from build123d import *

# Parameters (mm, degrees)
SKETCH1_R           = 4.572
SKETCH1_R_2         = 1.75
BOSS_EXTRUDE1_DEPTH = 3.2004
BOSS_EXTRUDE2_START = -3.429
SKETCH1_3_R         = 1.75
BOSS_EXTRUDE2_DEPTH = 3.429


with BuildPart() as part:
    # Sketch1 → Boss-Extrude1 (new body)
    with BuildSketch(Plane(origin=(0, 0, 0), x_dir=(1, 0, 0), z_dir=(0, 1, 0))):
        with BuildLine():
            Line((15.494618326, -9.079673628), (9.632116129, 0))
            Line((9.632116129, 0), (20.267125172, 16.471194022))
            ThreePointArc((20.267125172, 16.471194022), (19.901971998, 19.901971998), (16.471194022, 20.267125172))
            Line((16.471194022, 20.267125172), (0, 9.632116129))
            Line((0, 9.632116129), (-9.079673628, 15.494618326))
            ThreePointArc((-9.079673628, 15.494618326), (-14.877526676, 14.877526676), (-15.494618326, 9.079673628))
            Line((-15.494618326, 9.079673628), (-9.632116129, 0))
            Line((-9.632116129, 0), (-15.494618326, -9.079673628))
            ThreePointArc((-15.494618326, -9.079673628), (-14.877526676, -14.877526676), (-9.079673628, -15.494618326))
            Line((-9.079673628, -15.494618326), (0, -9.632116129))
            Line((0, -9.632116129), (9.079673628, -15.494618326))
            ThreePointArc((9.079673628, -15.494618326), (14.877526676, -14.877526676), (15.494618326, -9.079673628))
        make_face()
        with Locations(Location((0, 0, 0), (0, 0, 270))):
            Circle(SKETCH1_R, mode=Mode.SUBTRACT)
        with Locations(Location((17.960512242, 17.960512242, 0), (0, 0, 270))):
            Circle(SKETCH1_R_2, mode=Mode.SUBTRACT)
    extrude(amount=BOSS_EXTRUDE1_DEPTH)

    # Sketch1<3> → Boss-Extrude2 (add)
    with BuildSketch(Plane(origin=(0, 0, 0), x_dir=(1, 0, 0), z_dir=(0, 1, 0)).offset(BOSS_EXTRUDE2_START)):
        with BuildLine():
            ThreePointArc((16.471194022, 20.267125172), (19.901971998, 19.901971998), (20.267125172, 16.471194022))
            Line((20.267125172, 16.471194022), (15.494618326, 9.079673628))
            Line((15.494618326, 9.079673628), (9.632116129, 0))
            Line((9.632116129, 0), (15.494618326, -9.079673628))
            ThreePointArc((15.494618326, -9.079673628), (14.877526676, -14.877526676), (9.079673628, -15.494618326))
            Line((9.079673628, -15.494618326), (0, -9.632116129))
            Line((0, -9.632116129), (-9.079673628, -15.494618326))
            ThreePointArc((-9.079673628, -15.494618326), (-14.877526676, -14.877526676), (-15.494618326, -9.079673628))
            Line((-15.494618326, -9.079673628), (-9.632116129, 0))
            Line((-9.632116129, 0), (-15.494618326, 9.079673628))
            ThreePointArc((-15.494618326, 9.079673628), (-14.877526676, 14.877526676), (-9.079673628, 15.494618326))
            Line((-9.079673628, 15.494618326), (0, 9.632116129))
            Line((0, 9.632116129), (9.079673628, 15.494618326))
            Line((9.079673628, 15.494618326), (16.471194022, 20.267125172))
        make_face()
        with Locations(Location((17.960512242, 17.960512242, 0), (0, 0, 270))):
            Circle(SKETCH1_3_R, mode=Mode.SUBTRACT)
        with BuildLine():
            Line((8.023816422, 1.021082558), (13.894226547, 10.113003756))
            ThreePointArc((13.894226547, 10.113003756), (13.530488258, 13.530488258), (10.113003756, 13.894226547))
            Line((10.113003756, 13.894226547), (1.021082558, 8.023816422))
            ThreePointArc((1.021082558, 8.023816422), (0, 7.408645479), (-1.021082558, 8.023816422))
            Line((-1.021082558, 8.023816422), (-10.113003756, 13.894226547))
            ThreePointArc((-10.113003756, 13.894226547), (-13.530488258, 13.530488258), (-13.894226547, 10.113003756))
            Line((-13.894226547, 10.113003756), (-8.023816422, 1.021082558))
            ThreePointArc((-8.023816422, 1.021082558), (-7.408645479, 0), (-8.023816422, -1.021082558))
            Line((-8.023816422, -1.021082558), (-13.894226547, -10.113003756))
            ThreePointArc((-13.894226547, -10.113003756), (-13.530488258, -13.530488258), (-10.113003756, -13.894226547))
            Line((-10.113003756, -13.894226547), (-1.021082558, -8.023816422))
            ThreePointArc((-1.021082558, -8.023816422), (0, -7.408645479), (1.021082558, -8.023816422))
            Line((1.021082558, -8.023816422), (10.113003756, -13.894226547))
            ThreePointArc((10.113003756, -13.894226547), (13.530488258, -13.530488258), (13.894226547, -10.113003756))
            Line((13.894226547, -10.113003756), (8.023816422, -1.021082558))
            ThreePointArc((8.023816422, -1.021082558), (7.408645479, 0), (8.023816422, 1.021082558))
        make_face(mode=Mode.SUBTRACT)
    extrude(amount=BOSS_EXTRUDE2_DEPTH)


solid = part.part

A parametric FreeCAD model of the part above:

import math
import FreeCAD as App
import Part
import Sketcher
from FreeCAD import Vector
Q = App.Units.Quantity

doc = App.newDocument("Part")
body = doc.addObject("PartDesign::Body", "Body")

# Sketch on XZ plane
sketch1 = body.newObject("Sketcher::SketchObject", "Sketch")
sketch1.AttachmentSupport = (doc.getObject("XZ_Plane"), [""])
sketch1.MapMode = "FlatFace"
sketch1.addGeometry(Part.LineSegment(Vector(15.5, 9.1, 0), Vector(9.6, 0, 0)), False)
sketch1.addGeometry(Part.LineSegment(Vector(9.6, 0, 0), Vector(20.3, -16.5, 0)), False)
sketch1.addGeometry(Part.ArcOfCircle(Part.Circle(Vector(18, -18, 0), Vector(0, 0, 1), 2.7), math.radians(-123), math.radians(33)), False)
sketch1.addGeometry(Part.LineSegment(Vector(16.5, -20.3, 0), Vector(0, -9.6, 0)), False)
sketch1.addGeometry(Part.LineSegment(Vector(0, -9.6, 0), Vector(-9.1, -15.5, 0)), False)
sketch1.addGeometry(Part.ArcOfCircle(Part.Circle(Vector(-11.6, -11.6, 0), Vector(0, 0, 1), 4.6), math.radians(147), math.radians(303)), False)
sketch1.addGeometry(Part.LineSegment(Vector(-15.5, -9.1, 0), Vector(-9.6, 0, 0)), False)
sketch1.addGeometry(Part.LineSegment(Vector(-9.6, 0, 0), Vector(-15.5, 9.1, 0)), False)
sketch1.addGeometry(Part.ArcOfCircle(Part.Circle(Vector(-11.6, 11.6, 0), Vector(0, 0, 1), 4.6), math.radians(57), math.radians(213)), False)
sketch1.addGeometry(Part.LineSegment(Vector(-9.1, 15.5, 0), Vector(0, 9.6, 0)), False)
sketch1.addGeometry(Part.LineSegment(Vector(0, 9.6, 0), Vector(9.1, 15.5, 0)), False)
sketch1.addGeometry(Part.ArcOfCircle(Part.Circle(Vector(11.6, 11.6, 0), Vector(0, 0, 1), 4.6), math.radians(-33), math.radians(123)), False)
sketch1.addGeometry(Part.Circle(Vector(0, 0, 0), Vector(0, 0, 1), 4.6), False)
sketch1.addGeometry(Part.Circle(Vector(18, -18, 0), Vector(0, 0, 1), 1.8), False)
sketch1.addConstraint(Sketcher.Constraint("Coincident", 0, 2, 1, 1))
sketch1.addConstraint(Sketcher.Constraint("Tangent", 1, 2, 2, 2))
sketch1.addConstraint(Sketcher.Constraint("Tangent", 2, 1, 3, 1))
sketch1.addConstraint(Sketcher.Constraint("Coincident", 3, 2, 4, 1))
sketch1.addConstraint(Sketcher.Constraint("Tangent", 4, 2, 5, 2))
sketch1.addConstraint(Sketcher.Constraint("Tangent", 5, 1, 6, 1))
sketch1.addConstraint(Sketcher.Constraint("Coincident", 6, 2, 7, 1))
sketch1.addConstraint(Sketcher.Constraint("Tangent", 7, 2, 8, 2))
sketch1.addConstraint(Sketcher.Constraint("Tangent", 8, 1, 9, 1))
sketch1.addConstraint(Sketcher.Constraint("Coincident", 9, 2, 10, 1))
sketch1.addConstraint(Sketcher.Constraint("Tangent", 10, 2, 11, 2))
sketch1.addConstraint(Sketcher.Constraint("Tangent", 11, 1, 0, 1))
sketch1.addConstraint(Sketcher.Constraint("Coincident", 12, 3, -1, 1))
sketch1.addConstraint(Sketcher.Constraint("Coincident", 13, 3, 2, 3))
sketch1.addConstraint(Sketcher.Constraint("Equal", 5, 8))
sketch1.addConstraint(Sketcher.Constraint("Equal", 8, 11))
sketch1.addConstraint(Sketcher.Constraint("Symmetric", 5, 3, 11, 3, -1, 1))
sketch1.addConstraint(Sketcher.Constraint("Symmetric", 0, 2, 6, 2, -1, 1))
sketch1.addConstraint(Sketcher.Constraint("Symmetric", 3, 2, 9, 2, -1, 1))
sketch1.addConstraint(Sketcher.Constraint("Symmetric", 8, 3, 11, 3, -2))
sketch1.addConstraint(Sketcher.Constraint("PointOnObject", 0, 2, -1))
sketch1.addConstraint(Sketcher.Constraint("PointOnObject", 3, 2, -2))
sketch1.addConstraint(Sketcher.Constraint("Perpendicular", 0, 3))
sketch1.addConstraint(Sketcher.Constraint("Perpendicular", 1, 4))
sketch1.addConstraint(Sketcher.Constraint("Perpendicular", 4, 7))
sketch1.addConstraint(Sketcher.Constraint("Equal", 1, 3))
sketch1.addConstraint(Sketcher.Constraint("Diameter", 12, Q("0.36 in")))
sketch1.addConstraint(Sketcher.Constraint("Diameter", 13, 3.5))
sketch1.addConstraint(Sketcher.Constraint("Radius", 5, 4.64))
sketch1.addConstraint(Sketcher.Constraint("Radius", 2, 2.745639))
sketch1.addConstraint(Sketcher.Constraint("Distance", 0, 10.80784))
sketch1.addConstraint(Sketcher.Constraint("DistanceX", 5, 3, -1, 1, 11.596551))
pad1 = body.newObject("PartDesign::Pad", "Pad")
pad1.Profile = sketch1
pad1.Length = Q("0.126 in")
pad1.Reversed = True

# Sketch on XZ plane
sketch2 = body.newObject("Sketcher::SketchObject", "Sketch001")
sketch2.AttachmentSupport = (doc.getObject("XZ_Plane"), [""])
sketch2.MapMode = "FlatFace"
sketch2.AttachmentOffset = App.Placement(Vector(0, 0, 0.135 * 25.4), App.Rotation())
sketch2.addGeometry(Part.ArcOfCircle(Part.Circle(Vector(18, -18, 0), Vector(0, 0, 1), 2.7), math.radians(-123), math.radians(33)), False)
sketch2.addGeometry(Part.LineSegment(Vector(16.5, -20.3, 0), Vector(0, -9.6, 0)), False)
sketch2.addGeometry(Part.LineSegment(Vector(0, -9.6, 0), Vector(-9.1, -15.5, 0)), False)
sketch2.addGeometry(Part.ArcOfCircle(Part.Circle(Vector(-11.6, -11.6, 0), Vector(0, 0, 1), 4.6), math.radians(147), math.radians(303)), False)
sketch2.addGeometry(Part.LineSegment(Vector(-15.5, -9.1, 0), Vector(-9.6, 0, 0)), False)
sketch2.addGeometry(Part.LineSegment(Vector(-9.6, 0, 0), Vector(-15.5, 9.1, 0)), False)
sketch2.addGeometry(Part.ArcOfCircle(Part.Circle(Vector(-11.6, 11.6, 0), Vector(0, 0, 1), 4.6), math.radians(57), math.radians(213)), False)
sketch2.addGeometry(Part.LineSegment(Vector(-9.1, 15.5, 0), Vector(0, 9.6, 0)), False)
sketch2.addGeometry(Part.LineSegment(Vector(0, 9.6, 0), Vector(9.1, 15.5, 0)), False)
sketch2.addGeometry(Part.ArcOfCircle(Part.Circle(Vector(11.6, 11.6, 0), Vector(0, 0, 1), 4.6), math.radians(-33), math.radians(123)), False)
sketch2.addGeometry(Part.LineSegment(Vector(15.5, 9.1, 0), Vector(9.6, 0, 0)), False)
sketch2.addGeometry(Part.LineSegment(Vector(9.6, 0, 0), Vector(20.3, -16.5, 0)), False)
sketch2.addGeometry(Part.ArcOfCircle(Part.Circle(Vector(8.6, 0, 0), Vector(0, 0, 1), 1.2), math.radians(118), math.radians(242)), False)
sketch2.addGeometry(Part.LineSegment(Vector(8, 1, 0), Vector(13.9, 10.1, 0)), False)
sketch2.addGeometry(Part.ArcOfCircle(Part.Circle(Vector(11.6, 11.6, 0), Vector(0, 0, 1), 2.7), math.radians(-33), math.radians(123)), False)
sketch2.addGeometry(Part.LineSegment(Vector(10.1, 13.9, 0), Vector(1, 8, 0)), False)
sketch2.addGeometry(Part.ArcOfCircle(Part.Circle(Vector(0, 8.6, 0), Vector(0, 0, 1), 1.2), math.radians(-152), math.radians(-28)), False)
sketch2.addGeometry(Part.LineSegment(Vector(-1, 8, 0), Vector(-10.1, 13.9, 0)), False)
sketch2.addGeometry(Part.ArcOfCircle(Part.Circle(Vector(-11.6, 11.6, 0), Vector(0, 0, 1), 2.7), math.radians(57), math.radians(213)), False)
sketch2.addGeometry(Part.LineSegment(Vector(-13.9, 10.1, 0), Vector(-8, 1, 0)), False)
sketch2.addGeometry(Part.ArcOfCircle(Part.Circle(Vector(-8.6, 0, 0), Vector(0, 0, 1), 1.2), math.radians(-62), math.radians(62)), False)
sketch2.addGeometry(Part.LineSegment(Vector(-8, -1, 0), Vector(-13.9, -10.1, 0)), False)
sketch2.addGeometry(Part.ArcOfCircle(Part.Circle(Vector(-11.6, -11.6, 0), Vector(0, 0, 1), 2.7), math.radians(147), math.radians(303)), False)
sketch2.addGeometry(Part.LineSegment(Vector(-10.1, -13.9, 0), Vector(-1, -8, 0)), False)
sketch2.addGeometry(Part.ArcOfCircle(Part.Circle(Vector(0, -8.6, 0), Vector(0, 0, 1), 1.2), math.radians(28), math.radians(152)), False)
sketch2.addGeometry(Part.LineSegment(Vector(1, -8, 0), Vector(10.1, -13.9, 0)), False)
sketch2.addGeometry(Part.ArcOfCircle(Part.Circle(Vector(11.6, -11.6, 0), Vector(0, 0, 1), 2.7), math.radians(-123), math.radians(33)), False)
sketch2.addGeometry(Part.LineSegment(Vector(13.9, -10.1, 0), Vector(8, -1, 0)), False)
sketch2.addGeometry(Part.Circle(Vector(18, -18, 0), Vector(0, 0, 1), 1.8), False)
sketch2.addConstraint(Sketcher.Constraint("Tangent", 0, 1, 1, 1))
sketch2.addConstraint(Sketcher.Constraint("Coincident", 1, 2, 2, 1))
sketch2.addConstraint(Sketcher.Constraint("Tangent", 2, 2, 3, 2))
sketch2.addConstraint(Sketcher.Constraint("Tangent", 3, 1, 4, 1))
sketch2.addConstraint(Sketcher.Constraint("Coincident", 4, 2, 5, 1))
sketch2.addConstraint(Sketcher.Constraint("Tangent", 5, 2, 6, 2))
sketch2.addConstraint(Sketcher.Constraint("Tangent", 6, 1, 7, 1))
sketch2.addConstraint(Sketcher.Constraint("Coincident", 7, 2, 8, 1))
sketch2.addConstraint(Sketcher.Constraint("Tangent", 8, 2, 9, 2))
sketch2.addConstraint(Sketcher.Constraint("Tangent", 9, 1, 10, 1))
sketch2.addConstraint(Sketcher.Constraint("Coincident", 10, 2, 11, 1))
sketch2.addConstraint(Sketcher.Constraint("Tangent", 11, 2, 0, 2))
sketch2.addConstraint(Sketcher.Constraint("Coincident", 12, 1, 13, 1))
sketch2.addConstraint(Sketcher.Constraint("Tangent", 13, 2, 14, 1))
sketch2.addConstraint(Sketcher.Constraint("Tangent", 14, 2, 15, 1))
sketch2.addConstraint(Sketcher.Constraint("Coincident", 15, 2, 16, 2))
sketch2.addConstraint(Sketcher.Constraint("Coincident", 16, 1, 17, 1))
sketch2.addConstraint(Sketcher.Constraint("Tangent", 17, 2, 18, 1))
sketch2.addConstraint(Sketcher.Constraint("Tangent", 18, 2, 19, 1))
sketch2.addConstraint(Sketcher.Constraint("Coincident", 19, 2, 20, 2))
sketch2.addConstraint(Sketcher.Constraint("Coincident", 20, 1, 21, 1))
sketch2.addConstraint(Sketcher.Constraint("Tangent", 21, 2, 22, 1))
sketch2.addConstraint(Sketcher.Constraint("Tangent", 22, 2, 23, 1))
sketch2.addConstraint(Sketcher.Constraint("Coincident", 23, 2, 24, 2))
sketch2.addConstraint(Sketcher.Constraint("Coincident", 24, 1, 25, 1))
sketch2.addConstraint(Sketcher.Constraint("Tangent", 25, 2, 26, 1))
sketch2.addConstraint(Sketcher.Constraint("Tangent", 26, 2, 27, 1))
sketch2.addConstraint(Sketcher.Constraint("Coincident", 27, 2, 12, 2))
sketch2.addConstraint(Sketcher.Constraint("Coincident", 14, 3, 9, 3))
sketch2.addConstraint(Sketcher.Constraint("Coincident", 18, 3, 6, 3))
sketch2.addConstraint(Sketcher.Constraint("Coincident", 22, 3, 3, 3))
sketch2.addConstraint(Sketcher.Constraint("Coincident", 28, 3, 0, 3))
sketch2.addConstraint(Sketcher.Constraint("Equal", 3, 6))
sketch2.addConstraint(Sketcher.Constraint("Equal", 6, 9))
sketch2.addConstraint(Sketcher.Constraint("Equal", 12, 16))
sketch2.addConstraint(Sketcher.Constraint("Equal", 14, 18))
sketch2.addConstraint(Sketcher.Constraint("Equal", 16, 20))
sketch2.addConstraint(Sketcher.Constraint("Equal", 18, 22))
sketch2.addConstraint(Sketcher.Constraint("Equal", 20, 24))
sketch2.addConstraint(Sketcher.Constraint("Equal", 22, 26))
sketch2.addConstraint(Sketcher.Constraint("Symmetric", 3, 3, 9, 3, -1, 1))
sketch2.addConstraint(Sketcher.Constraint("Symmetric", 12, 3, 20, 3, -1, 1))
sketch2.addConstraint(Sketcher.Constraint("Symmetric", 16, 3, 24, 3, -1, 1))
sketch2.addConstraint(Sketcher.Constraint("Symmetric", 6, 3, 26, 3, -1, 1))
sketch2.addConstraint(Sketcher.Constraint("Symmetric", 1, 2, 7, 2, -1, 1))
sketch2.addConstraint(Sketcher.Constraint("Symmetric", 4, 2, 10, 2, -1, 1))
sketch2.addConstraint(Sketcher.Constraint("Symmetric", 6, 3, 9, 3, -2))
sketch2.addConstraint(Sketcher.Constraint("Symmetric", 15, 2, 16, 1, -2))
sketch2.addConstraint(Sketcher.Constraint("Symmetric", 12, 1, 19, 2, -2))
sketch2.addConstraint(Sketcher.Constraint("PointOnObject", 1, 2, -2))
sketch2.addConstraint(Sketcher.Constraint("PointOnObject", 4, 2, -1))
sketch2.addConstraint(Sketcher.Constraint("Perpendicular", 1, 4))
sketch2.addConstraint(Sketcher.Constraint("Perpendicular", 2, 5))
sketch2.addConstraint(Sketcher.Constraint("Perpendicular", 8, 11))
sketch2.addConstraint(Sketcher.Constraint("Parallel", 10, 13))
sketch2.addConstraint(Sketcher.Constraint("Perpendicular", 11, 15))
sketch2.addConstraint(Sketcher.Constraint("Perpendicular", 17, 21))
sketch2.addConstraint(Sketcher.Constraint("Perpendicular", 19, 23))
sketch2.addConstraint(Sketcher.Constraint("Perpendicular", 21, 25))
sketch2.addConstraint(Sketcher.Constraint("Perpendicular", 23, 27))
sketch2.addConstraint(Sketcher.Constraint("Equal", 2, 4))
sketch2.addConstraint(Sketcher.Constraint("Equal", 13, 15))
sketch2.addConstraint(Sketcher.Constraint("Diameter", 28, 3.5))
sketch2.addConstraint(Sketcher.Constraint("Radius", 3, 4.64))
sketch2.addConstraint(Sketcher.Constraint("Radius", 12, 1.155))
sketch2.addConstraint(Sketcher.Constraint("Radius", 14, 2.735))
sketch2.addConstraint(Sketcher.Constraint("Radius", 0, 2.745639))
sketch2.addConstraint(Sketcher.Constraint("DistanceY", -1, 1, 12, 1, Q("0.0402001 in")))
sketch2.addConstraint(Sketcher.Constraint("DistanceX", 12, 1, 9, 1, 7.470802))
sketch2.addConstraint(Sketcher.Constraint("DistanceY", 0, 1, 25, 2, 6.372899))
pad2 = body.newObject("PartDesign::Pad", "Pad001")
pad2.Profile = sketch2
pad2.Length = Q("0.135 in")
pad2.Reversed = True

doc.recompute()
